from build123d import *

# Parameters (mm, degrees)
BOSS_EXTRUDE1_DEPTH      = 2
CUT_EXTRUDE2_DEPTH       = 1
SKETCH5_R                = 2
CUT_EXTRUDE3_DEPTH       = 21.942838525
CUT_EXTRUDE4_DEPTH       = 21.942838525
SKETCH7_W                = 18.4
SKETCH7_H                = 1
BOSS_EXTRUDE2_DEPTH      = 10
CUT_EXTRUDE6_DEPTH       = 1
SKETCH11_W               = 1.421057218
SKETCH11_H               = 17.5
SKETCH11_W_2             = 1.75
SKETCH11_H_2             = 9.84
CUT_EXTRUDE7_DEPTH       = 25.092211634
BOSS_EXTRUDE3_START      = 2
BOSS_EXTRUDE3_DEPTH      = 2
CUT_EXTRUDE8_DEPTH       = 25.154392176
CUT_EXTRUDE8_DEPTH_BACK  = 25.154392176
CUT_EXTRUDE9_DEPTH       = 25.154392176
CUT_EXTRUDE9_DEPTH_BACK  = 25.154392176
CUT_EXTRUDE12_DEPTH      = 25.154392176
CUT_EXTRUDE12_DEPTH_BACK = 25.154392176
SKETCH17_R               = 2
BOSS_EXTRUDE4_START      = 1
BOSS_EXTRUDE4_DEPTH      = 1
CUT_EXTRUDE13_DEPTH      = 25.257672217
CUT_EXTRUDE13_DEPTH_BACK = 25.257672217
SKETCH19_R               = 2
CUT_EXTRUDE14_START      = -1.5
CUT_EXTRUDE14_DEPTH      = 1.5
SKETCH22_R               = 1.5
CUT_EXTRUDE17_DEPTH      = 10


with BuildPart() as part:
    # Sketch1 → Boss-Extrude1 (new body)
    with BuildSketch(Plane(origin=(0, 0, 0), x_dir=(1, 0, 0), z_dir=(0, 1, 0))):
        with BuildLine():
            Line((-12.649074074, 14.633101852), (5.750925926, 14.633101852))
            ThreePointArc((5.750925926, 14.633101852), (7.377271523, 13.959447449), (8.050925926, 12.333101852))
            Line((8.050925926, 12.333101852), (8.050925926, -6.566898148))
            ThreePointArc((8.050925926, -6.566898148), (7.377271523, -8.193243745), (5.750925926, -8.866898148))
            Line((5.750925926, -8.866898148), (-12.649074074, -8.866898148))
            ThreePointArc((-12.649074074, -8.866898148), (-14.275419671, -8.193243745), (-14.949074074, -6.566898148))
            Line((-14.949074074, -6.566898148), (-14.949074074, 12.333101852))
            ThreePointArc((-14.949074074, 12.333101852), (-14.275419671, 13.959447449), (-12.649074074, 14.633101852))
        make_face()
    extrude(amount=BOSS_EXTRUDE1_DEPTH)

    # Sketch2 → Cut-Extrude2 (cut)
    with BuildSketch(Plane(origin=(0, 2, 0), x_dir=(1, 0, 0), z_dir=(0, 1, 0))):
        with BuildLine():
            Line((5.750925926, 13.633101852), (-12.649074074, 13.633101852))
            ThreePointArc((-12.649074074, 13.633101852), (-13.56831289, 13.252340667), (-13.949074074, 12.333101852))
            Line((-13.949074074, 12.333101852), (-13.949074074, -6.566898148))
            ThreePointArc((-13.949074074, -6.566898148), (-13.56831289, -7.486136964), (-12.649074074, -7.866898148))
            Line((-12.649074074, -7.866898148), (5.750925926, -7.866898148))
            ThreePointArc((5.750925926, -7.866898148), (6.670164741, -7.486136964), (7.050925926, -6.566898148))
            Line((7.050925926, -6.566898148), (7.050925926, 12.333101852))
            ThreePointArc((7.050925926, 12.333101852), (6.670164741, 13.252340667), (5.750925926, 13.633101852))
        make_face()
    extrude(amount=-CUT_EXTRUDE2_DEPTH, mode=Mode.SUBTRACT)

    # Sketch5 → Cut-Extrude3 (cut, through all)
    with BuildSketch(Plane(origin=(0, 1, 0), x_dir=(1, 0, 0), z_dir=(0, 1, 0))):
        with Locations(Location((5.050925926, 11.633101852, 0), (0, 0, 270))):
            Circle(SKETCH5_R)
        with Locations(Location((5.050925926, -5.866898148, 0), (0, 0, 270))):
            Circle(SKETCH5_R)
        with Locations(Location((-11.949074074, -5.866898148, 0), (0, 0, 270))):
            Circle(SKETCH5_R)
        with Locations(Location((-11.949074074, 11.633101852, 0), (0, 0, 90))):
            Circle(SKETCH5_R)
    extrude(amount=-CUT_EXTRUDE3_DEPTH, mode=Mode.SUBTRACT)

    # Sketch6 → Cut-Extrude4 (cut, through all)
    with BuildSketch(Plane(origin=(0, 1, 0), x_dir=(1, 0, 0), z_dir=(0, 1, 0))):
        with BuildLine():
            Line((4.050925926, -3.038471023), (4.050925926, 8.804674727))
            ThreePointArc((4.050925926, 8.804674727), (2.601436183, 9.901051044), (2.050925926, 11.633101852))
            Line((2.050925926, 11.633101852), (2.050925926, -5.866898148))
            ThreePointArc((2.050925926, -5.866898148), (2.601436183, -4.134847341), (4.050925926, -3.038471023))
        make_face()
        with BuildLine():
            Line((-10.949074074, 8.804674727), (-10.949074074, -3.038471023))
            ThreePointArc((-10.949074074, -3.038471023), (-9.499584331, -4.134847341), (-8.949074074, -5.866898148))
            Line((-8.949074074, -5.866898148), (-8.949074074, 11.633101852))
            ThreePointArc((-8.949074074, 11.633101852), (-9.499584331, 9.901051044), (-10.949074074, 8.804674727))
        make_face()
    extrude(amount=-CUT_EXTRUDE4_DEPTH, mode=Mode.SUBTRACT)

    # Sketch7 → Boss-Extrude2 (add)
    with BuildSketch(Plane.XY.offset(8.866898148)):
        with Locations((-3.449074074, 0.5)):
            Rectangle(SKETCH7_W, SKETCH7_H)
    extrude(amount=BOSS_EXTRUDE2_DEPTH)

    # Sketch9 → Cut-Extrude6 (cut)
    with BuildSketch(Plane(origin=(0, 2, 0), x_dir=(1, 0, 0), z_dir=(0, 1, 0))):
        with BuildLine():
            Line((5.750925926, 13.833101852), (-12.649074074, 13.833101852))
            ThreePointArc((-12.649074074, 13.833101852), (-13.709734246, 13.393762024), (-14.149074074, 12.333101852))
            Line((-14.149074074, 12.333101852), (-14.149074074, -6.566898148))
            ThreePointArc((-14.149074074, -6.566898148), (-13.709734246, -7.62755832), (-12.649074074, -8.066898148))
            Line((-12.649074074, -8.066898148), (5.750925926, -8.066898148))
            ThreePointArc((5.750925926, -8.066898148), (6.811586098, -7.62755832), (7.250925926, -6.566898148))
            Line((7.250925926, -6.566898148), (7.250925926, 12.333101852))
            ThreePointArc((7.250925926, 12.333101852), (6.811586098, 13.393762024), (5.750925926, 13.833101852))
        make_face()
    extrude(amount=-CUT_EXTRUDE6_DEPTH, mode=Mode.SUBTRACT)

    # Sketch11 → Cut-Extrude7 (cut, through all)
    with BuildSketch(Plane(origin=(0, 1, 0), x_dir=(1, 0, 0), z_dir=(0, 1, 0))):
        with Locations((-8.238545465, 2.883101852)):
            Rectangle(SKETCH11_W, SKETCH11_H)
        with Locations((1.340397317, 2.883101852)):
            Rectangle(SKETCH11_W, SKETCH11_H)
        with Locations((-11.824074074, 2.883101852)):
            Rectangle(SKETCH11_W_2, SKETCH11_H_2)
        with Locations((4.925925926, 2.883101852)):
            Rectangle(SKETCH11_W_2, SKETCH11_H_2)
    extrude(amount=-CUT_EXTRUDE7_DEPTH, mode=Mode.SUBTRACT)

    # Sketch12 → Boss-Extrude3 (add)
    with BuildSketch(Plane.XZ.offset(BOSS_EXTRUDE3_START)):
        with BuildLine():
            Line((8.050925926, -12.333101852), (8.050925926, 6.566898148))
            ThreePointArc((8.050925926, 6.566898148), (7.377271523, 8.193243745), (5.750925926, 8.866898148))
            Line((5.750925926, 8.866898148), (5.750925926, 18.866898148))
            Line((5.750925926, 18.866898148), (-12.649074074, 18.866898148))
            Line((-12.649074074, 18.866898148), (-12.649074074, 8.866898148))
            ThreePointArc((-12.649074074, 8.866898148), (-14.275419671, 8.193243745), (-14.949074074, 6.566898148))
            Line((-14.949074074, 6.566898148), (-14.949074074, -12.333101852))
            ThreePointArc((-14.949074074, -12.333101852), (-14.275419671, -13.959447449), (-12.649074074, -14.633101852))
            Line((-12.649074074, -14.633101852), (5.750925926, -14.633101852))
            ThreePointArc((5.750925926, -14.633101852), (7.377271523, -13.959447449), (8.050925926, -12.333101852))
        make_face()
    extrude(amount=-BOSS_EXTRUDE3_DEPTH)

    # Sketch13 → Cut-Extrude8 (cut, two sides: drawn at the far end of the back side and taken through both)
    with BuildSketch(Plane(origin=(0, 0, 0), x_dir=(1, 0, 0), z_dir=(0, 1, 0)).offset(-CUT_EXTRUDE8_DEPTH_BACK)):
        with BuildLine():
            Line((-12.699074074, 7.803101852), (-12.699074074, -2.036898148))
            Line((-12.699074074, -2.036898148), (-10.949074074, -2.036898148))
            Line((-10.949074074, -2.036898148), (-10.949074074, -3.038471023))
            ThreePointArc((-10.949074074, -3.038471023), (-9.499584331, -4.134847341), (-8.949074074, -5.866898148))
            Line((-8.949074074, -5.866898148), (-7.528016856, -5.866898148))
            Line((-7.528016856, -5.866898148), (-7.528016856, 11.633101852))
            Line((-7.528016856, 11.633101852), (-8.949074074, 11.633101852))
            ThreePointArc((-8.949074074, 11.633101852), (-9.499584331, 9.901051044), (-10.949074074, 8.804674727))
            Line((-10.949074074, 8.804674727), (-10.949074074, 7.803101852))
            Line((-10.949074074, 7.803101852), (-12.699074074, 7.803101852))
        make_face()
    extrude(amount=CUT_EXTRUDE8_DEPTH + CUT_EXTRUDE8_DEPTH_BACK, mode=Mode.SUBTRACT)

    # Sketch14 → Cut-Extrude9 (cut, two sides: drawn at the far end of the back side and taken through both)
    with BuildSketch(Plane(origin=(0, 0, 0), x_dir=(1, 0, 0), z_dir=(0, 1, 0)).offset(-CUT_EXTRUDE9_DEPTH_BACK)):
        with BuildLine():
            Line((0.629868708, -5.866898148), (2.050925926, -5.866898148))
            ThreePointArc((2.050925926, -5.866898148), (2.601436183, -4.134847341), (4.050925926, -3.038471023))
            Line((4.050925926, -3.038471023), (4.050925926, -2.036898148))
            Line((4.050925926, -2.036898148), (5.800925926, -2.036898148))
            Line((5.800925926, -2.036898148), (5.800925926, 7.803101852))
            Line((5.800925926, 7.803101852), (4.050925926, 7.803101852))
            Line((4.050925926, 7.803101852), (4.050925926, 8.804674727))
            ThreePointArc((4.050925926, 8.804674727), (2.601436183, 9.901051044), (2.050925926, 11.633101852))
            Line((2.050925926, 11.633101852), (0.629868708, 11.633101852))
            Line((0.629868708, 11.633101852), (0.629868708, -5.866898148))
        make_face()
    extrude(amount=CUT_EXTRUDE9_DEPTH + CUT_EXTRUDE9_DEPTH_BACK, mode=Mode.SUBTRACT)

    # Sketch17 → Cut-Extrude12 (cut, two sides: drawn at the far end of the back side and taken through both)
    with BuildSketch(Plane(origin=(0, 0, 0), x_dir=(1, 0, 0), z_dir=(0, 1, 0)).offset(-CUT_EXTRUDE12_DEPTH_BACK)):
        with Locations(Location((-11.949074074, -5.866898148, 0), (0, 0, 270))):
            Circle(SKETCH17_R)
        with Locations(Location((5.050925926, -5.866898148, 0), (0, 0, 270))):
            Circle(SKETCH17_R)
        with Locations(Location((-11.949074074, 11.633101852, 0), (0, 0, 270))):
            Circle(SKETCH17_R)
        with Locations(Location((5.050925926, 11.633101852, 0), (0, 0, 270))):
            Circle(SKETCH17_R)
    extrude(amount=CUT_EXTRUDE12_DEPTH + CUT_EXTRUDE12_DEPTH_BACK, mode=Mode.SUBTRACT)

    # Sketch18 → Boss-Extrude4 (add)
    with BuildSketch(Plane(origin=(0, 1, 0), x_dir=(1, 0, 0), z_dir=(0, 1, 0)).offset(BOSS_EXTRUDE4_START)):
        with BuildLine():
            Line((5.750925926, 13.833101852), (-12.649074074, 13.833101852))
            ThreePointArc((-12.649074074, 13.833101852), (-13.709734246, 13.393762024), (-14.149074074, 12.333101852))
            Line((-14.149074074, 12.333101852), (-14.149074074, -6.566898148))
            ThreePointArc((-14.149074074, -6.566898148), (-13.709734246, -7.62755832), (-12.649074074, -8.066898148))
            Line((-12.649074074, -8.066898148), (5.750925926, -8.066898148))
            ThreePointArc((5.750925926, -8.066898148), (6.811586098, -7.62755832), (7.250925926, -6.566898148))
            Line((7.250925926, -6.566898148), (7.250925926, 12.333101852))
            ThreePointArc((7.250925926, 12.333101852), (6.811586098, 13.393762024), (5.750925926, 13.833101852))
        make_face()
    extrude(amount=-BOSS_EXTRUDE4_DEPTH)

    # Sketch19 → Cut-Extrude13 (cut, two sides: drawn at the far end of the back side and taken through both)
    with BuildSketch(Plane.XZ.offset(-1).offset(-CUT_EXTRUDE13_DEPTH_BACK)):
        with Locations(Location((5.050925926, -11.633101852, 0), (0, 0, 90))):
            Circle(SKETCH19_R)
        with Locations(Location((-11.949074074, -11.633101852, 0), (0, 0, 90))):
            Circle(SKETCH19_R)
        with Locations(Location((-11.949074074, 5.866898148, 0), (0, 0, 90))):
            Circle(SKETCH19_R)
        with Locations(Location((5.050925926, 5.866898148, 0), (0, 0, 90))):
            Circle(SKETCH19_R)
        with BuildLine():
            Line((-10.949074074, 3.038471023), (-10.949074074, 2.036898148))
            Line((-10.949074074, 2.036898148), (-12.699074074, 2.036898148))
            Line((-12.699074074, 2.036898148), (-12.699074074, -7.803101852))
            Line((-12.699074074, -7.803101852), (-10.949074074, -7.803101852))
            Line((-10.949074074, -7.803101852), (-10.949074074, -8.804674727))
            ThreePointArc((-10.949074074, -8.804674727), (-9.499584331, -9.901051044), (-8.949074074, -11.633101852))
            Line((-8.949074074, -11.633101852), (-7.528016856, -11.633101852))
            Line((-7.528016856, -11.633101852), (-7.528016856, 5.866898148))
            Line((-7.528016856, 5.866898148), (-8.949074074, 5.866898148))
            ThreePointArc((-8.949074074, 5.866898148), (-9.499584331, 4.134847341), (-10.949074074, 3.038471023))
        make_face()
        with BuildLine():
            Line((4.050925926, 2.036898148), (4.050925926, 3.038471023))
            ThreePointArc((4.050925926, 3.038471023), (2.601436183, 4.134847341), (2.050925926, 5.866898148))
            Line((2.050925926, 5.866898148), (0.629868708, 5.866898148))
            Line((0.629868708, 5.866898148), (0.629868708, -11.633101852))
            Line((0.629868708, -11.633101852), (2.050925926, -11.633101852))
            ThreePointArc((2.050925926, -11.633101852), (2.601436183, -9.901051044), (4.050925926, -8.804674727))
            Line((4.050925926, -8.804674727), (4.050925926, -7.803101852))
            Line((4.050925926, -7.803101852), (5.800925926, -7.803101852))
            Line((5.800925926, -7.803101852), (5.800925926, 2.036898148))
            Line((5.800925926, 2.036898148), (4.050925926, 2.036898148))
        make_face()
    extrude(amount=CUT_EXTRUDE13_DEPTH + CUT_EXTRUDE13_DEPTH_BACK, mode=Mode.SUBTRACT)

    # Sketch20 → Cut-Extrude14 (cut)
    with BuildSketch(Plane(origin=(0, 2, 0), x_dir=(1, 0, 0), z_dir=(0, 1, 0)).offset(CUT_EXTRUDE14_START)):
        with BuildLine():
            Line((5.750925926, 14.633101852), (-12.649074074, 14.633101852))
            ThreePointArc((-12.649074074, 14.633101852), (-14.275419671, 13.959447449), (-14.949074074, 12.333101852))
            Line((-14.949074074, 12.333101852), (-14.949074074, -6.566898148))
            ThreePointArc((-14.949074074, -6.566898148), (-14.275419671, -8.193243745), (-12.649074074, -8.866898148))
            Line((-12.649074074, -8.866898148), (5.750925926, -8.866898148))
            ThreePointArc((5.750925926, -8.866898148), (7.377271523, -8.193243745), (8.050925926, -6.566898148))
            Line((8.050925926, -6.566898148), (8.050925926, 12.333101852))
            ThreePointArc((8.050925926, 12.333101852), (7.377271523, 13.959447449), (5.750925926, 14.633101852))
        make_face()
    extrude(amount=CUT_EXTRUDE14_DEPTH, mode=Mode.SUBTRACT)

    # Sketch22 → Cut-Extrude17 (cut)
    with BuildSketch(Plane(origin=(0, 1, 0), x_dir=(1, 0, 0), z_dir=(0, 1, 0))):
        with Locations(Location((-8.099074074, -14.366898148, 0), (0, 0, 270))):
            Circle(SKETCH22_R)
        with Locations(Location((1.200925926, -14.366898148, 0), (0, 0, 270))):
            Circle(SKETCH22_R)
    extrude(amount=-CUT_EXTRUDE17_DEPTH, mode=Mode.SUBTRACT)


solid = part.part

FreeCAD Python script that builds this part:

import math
import FreeCAD as App
import Part
import Sketcher
Q = App.Units.Quantity


def add_polygon(sketch, points):
    """Adds a closed chain of lines whose ends are joined by coincident constraints."""
    first, n = sketch.GeometryCount, len(points)
    for a, b in zip(points, points[1:] + points[:1]):
        sketch.addGeometry(Part.LineSegment(App.Vector(*a, 0), App.Vector(*b, 0)), False)
    for i in range(n):
        sketch.addConstraint(Sketcher.Constraint("Coincident", first + i, 2, first + (i + 1) % n, 1))

doc = App.newDocument("Part")
body = doc.addObject("PartDesign::Body", "Body")

# Sketch on XZ plane
sketch1 = doc.addObject("Sketcher::SketchObject", "Sketch")
body.addObject(sketch1)
sketch1.AttachmentSupport = (doc.XZ_Plane, [""])
sketch1.MapMode = "FlatFace"
sketch1.addGeometry([
    Part.LineSegment(App.Vector(5.8, -14.6, 0), App.Vector(-12.6, -14.6, 0)),  # 0
    Part.ArcOfCircle(Part.Circle(App.Vector(-12.6, -12.3, 0), App.Vector(0, 0, 1), 2.3), math.radians(180), math.radians(270)),  # 1
    Part.LineSegment(App.Vector(-14.9, -12.3, 0), App.Vector(-14.9, 6.6, 0)),  # 2
    Part.ArcOfCircle(Part.Circle(App.Vector(-12.6, 6.6, 0), App.Vector(0, 0, 1), 2.3), math.radians(90), math.radians(180)),  # 3
    Part.LineSegment(App.Vector(-12.6, 8.9, 0), App.Vector(5.8, 8.9, 0)),  # 4
    Part.ArcOfCircle(Part.Circle(App.Vector(5.8, 6.6, 0), App.Vector(0, 0, 1), 2.3), math.radians(0), math.radians(90)),  # 5
    Part.LineSegment(App.Vector(8.1, 6.6, 0), App.Vector(8.1, -12.3, 0)),  # 6
    Part.ArcOfCircle(Part.Circle(App.Vector(5.8, -12.3, 0), App.Vector(0, 0, 1), 2.3), math.radians(-90), math.radians(0)),  # 7
], False)
sketch1.addConstraint([
    Sketcher.Constraint("Tangent", 0, 2, 1, 2),
    Sketcher.Constraint("Tangent", 1, 1, 2, 1),
    Sketcher.Constraint("Tangent", 2, 2, 3, 2),
    Sketcher.Constraint("Tangent", 3, 1, 4, 1),
    Sketcher.Constraint("Tangent", 4, 2, 5, 2),
    Sketcher.Constraint("Tangent", 5, 1, 6, 1),
    Sketcher.Constraint("Tangent", 6, 2, 7, 2),
    Sketcher.Constraint("Tangent", 7, 1, 0, 1),
    Sketcher.Constraint("Horizontal", 0),
    Sketcher.Constraint("Vertical", 2),
    Sketcher.Constraint("Horizontal", 4),
    Sketcher.Constraint("Vertical", 6),
    Sketcher.Constraint("Equal", 1, 3),
    Sketcher.Constraint("Equal", 3, 5),
    Sketcher.Constraint("Equal", 5, 7),
    Sketcher.Constraint("Radius", 1, Q("2.3 mm")),
    Sketcher.Constraint("DistanceX", 0, 2, 0, 1, Q("18.4 mm")),
    Sketcher.Constraint("DistanceY", 2, 1, 2, 2, Q("18.9 mm")),
    Sketcher.Constraint("DistanceY", 1, 3, -1, 1, Q("12.333102 mm")),
    Sketcher.Constraint("DistanceX", 1, 3, -1, 1, Q("12.649074 mm")),
])
pad1 = doc.addObject("PartDesign::Pad", "Pad")
body.addObject(pad1)
pad1.Profile = sketch1
pad1.Length = 2
pad1.Reversed = True

# Sketch on XZ plane
sketch2 = doc.addObject("Sketcher::SketchObject", "Sketch001")
body.addObject(sketch2)
sketch2.AttachmentSupport = (doc.XZ_Plane, [""])
sketch2.MapMode = "FlatFace"
sketch2.AttachmentOffset = App.Placement(App.Vector(0, 0, -2), App.Rotation())
sketch2.addGeometry([
    Part.LineSegment(App.Vector(5.8, -13.6, 0), App.Vector(-12.6, -13.6, 0)),  # 0
    Part.ArcOfCircle(Part.Circle(App.Vector(-12.6, -12.3, 0), App.Vector(0, 0, 1), 1.3), math.radians(180), math.radians(270)),  # 1
    Part.LineSegment(App.Vector(-13.9, -12.3, 0), App.Vector(-13.9, 6.6, 0)),  # 2
    Part.ArcOfCircle(Part.Circle(App.Vector(-12.6, 6.6, 0), App.Vector(0, 0, 1), 1.3), math.radians(90), math.radians(180)),  # 3
    Part.LineSegment(App.Vector(-12.6, 7.9, 0), App.Vector(5.8, 7.9, 0)),  # 4
    Part.ArcOfCircle(Part.Circle(App.Vector(5.8, 6.6, 0), App.Vector(0, 0, 1), 1.3), math.radians(0), math.radians(90)),  # 5
    Part.LineSegment(App.Vector(7.1, 6.6, 0), App.Vector(7.1, -12.3, 0)),  # 6
    Part.ArcOfCircle(Part.Circle(App.Vector(5.8, -12.3, 0), App.Vector(0, 0, 1), 1.3), math.radians(-90), math.radians(0)),  # 7
], False)
sketch2.addConstraint([
    Sketcher.Constraint("Tangent", 0, 2, 1, 2),
    Sketcher.Constraint("Tangent", 1, 1, 2, 1),
    Sketcher.Constraint("Tangent", 2, 2, 3, 2),
    Sketcher.Constraint("Tangent", 3, 1, 4, 1),
    Sketcher.Constraint("Tangent", 4, 2, 5, 2),
    Sketcher.Constraint("Tangent", 5, 1, 6, 1),
    Sketcher.Constraint("Tangent", 6, 2, 7, 2),
    Sketcher.Constraint("Tangent", 7, 1, 0, 1),
    Sketcher.Constraint("Horizontal", 0),
    Sketcher.Constraint("Vertical", 2),
    Sketcher.Constraint("Horizontal", 4),
    Sketcher.Constraint("Vertical", 6),
    Sketcher.Constraint("Equal", 1, 3),
    Sketcher.Constraint("Equal", 3, 5),
    Sketcher.Constraint("Equal", 5, 7),
    Sketcher.Constraint("Radius", 1, Q("1.3 mm")),
    Sketcher.Constraint("DistanceX", 0, 2, 0, 1, Q("18.4 mm")),
    Sketcher.Constraint("DistanceY", 2, 1, 2, 2, Q("18.9 mm")),
    Sketcher.Constraint("DistanceY", 1, 3, -1, 1, Q("12.333102 mm")),
    Sketcher.Constraint("DistanceX", 1, 3, -1, 1, Q("12.649074 mm")),
])
pocket1 = doc.addObject("PartDesign::Pocket", "Pocket")
body.addObject(pocket1)
pocket1.Profile = sketch2
pocket1.Length = 1
pocket1.Reversed = True

# Sketch on XZ plane
sketch3 = doc.addObject("Sketcher::SketchObject", "Sketch002")
body.addObject(sketch3)
sketch3.AttachmentSupport = (doc.XZ_Plane, [""])
sketch3.MapMode = "FlatFace"
sketch3.AttachmentOffset = App.Placement(App.Vector(0, 0, -1), App.Rotation())
sketch3.addGeometry([
    Part.Circle(App.Vector(5.1, -11.6, 0), App.Vector(0, 0, 1), 2),
    Part.Circle(App.Vector(5.1, 5.9, 0), App.Vector(0, 0, 1), 2),
    Part.Circle(App.Vector(-11.9, 5.9, 0), App.Vector(0, 0, 1), 2),
    Part.Circle(App.Vector(-11.9, -11.6, 0), App.Vector(0, 0, 1), 2),
], False)
sketch3.addConstraint([
    Sketcher.Constraint("Equal", 0, 1),
    Sketcher.Constraint("Equal", 1, 2),
    Sketcher.Constraint("Equal", 2, 3),
    Sketcher.Constraint("Horizontal", 1, 3, 2, 3),
    Sketcher.Constraint("Horizontal", 0, 3, 3, 3),
    Sketcher.Constraint("Vertical", 0, 3, 1, 3),
    Sketcher.Constraint("Vertical", 2, 3, 3, 3),
    Sketcher.Constraint("Diameter", 0, Q("4 mm")),
    Sketcher.Constraint("DistanceX", 2, 3, 1, 3, Q("17 mm")),
    Sketcher.Constraint("DistanceY", 0, 3, 1, 3, Q("17.5 mm")),
    Sketcher.Constraint("DistanceY", 0, 3, -1, 1, Q("11.633102 mm")),
    Sketcher.Constraint("DistanceX", -1, 1, 0, 3, Q("5.050926 mm")),
])
pocket2 = doc.addObject("PartDesign::Pocket", "Pocket001")
body.addObject(pocket2)
pocket2.Profile = sketch3
pocket2.Type = "ThroughAll"
pocket2.Reversed = True

# Sketch on XZ plane
sketch4 = doc.addObject("Sketcher::SketchObject", "Sketch003")
body.addObject(sketch4)
sketch4.AttachmentSupport = (doc.XZ_Plane, [""])
sketch4.MapMode = "FlatFace"
sketch4.AttachmentOffset = App.Placement(App.Vector(0, 0, -1), App.Rotation())
sketch4.addGeometry([
    Part.LineSegment(App.Vector(4.1, 3, 0), App.Vector(4.1, -8.8, 0)),  # 0
    Part.ArcOfCircle(Part.Circle(App.Vector(5.1, -11.6, 0), App.Vector(0, 0, 1), 3), math.radians(109), math.radians(180)),  # 1
    Part.LineSegment(App.Vector(2.1, -11.6, 0), App.Vector(2.1, 5.9, 0)),  # 2
    Part.ArcOfCircle(Part.Circle(App.Vector(5.1, 5.9, 0), App.Vector(0, 0, 1), 3), math.radians(-180), math.radians(-109)),  # 3
    Part.LineSegment(App.Vector(-10.9, -8.8, 0), App.Vector(-10.9, 3, 0)),  # 4
    Part.ArcOfCircle(Part.Circle(App.Vector(-11.9, 5.9, 0), App.Vector(0, 0, 1), 3), math.radians(-71), math.radians(0)),  # 5
    Part.LineSegment(App.Vector(-8.9, 5.9, 0), App.Vector(-8.9, -11.6, 0)),  # 6
    Part.ArcOfCircle(Part.Circle(App.Vector(-11.9, -11.6, 0), App.Vector(0, 0, 1), 3), math.radians(0), math.radians(71)),  # 7
], False)
sketch4.addConstraint([
    Sketcher.Constraint("Coincident", 0, 2, 1, 1),
    Sketcher.Constraint("Tangent", 1, 2, 2, 1),
    Sketcher.Constraint("Tangent", 2, 2, 3, 1),
    Sketcher.Constraint("Coincident", 3, 2, 0, 1),
    Sketcher.Constraint("Coincident", 4, 2, 5, 1),
    Sketcher.Constraint("Tangent", 5, 2, 6, 1),
    Sketcher.Constraint("Tangent", 6, 2, 7, 1),
    Sketcher.Constraint("Coincident", 7, 2, 4, 1),
    Sketcher.Constraint("Vertical", 0),
    Sketcher.Constraint("Vertical", 2),
    Sketcher.Constraint("Vertical", 4),
    Sketcher.Constraint("Vertical", 6),
    Sketcher.Constraint("Equal", 1, 3),
    Sketcher.Constraint("Equal", 3, 5),
    Sketcher.Constraint("Equal", 5, 7),
    Sketcher.Constraint("Horizontal", 3, 3, 5, 3),
    Sketcher.Constraint("Horizontal", 1, 3, 7, 3),
    Sketcher.Constraint("Horizontal", 3, 2, 4, 2),
    Sketcher.Constraint("Radius", 1, Q("3 mm")),
    Sketcher.Constraint("DistanceY", 2, 1, 2, 2, Q("17.5 mm")),
    Sketcher.Constraint("DistanceX", 5, 3, 3, 3, Q("17 mm")),
    Sketcher.Constraint("DistanceX", 0, 2, 1, 3, Q("1 mm")),
    Sketcher.Constraint("DistanceY", 1, 3, -1, 1, Q("11.633102 mm")),
    Sketcher.Constraint("DistanceX", -1, 1, 1, 3, Q("5.050926 mm")),
])
pocket3 = doc.addObject("PartDesign::Pocket", "Pocket002")
body.addObject(pocket3)
pocket3.Profile = sketch4
pocket3.Type = "ThroughAll"
pocket3.Reversed = True

# Sketch on XY plane
sketch5 = doc.addObject("Sketcher::SketchObject", "Sketch004")
body.addObject(sketch5)
sketch5.AttachmentSupport = (doc.XY_Plane, [""])
sketch5.MapMode = "FlatFace"
sketch5.AttachmentOffset = App.Placement(App.Vector(0, 0, 8.866898), App.Rotation())
add_polygon(sketch5, [(-12.6, 1), (-12.6, 0), (5.8, 0), (5.8, 1)])  # lines 0-3
sketch5.addConstraint([
    Sketcher.Constraint("Vertical", 0),
    Sketcher.Constraint("Horizontal", 1),
    Sketcher.Constraint("Vertical", 2),
    Sketcher.Constraint("Horizontal", 3),
    Sketcher.Constraint("PointOnObject", 0, 2, -1),
    Sketcher.Constraint("DistanceY", 0, 2, 0, 1, Q("1 mm")),
    Sketcher.Constraint("DistanceX", 1, 1, 1, 2, Q("18.4 mm")),
    Sketcher.Constraint("DistanceX", 0, 2, -1, 1, Q("12.649074 mm")),
])
pad2 = doc.addObject("PartDesign::Pad", "Pad001")
body.addObject(pad2)
pad2.Profile = sketch5
pad2.Length = 10

# Sketch on XZ plane
sketch6 = doc.addObject("Sketcher::SketchObject", "Sketch005")
body.addObject(sketch6)
sketch6.AttachmentSupport = (doc.XZ_Plane, [""])
sketch6.MapMode = "FlatFace"
sketch6.AttachmentOffset = App.Placement(App.Vector(0, 0, -2), App.Rotation())
sketch6.addGeometry([
    Part.LineSegment(App.Vector(5.8, -13.8, 0), App.Vector(-12.6, -13.8, 0)),  # 0
    Part.ArcOfCircle(Part.Circle(App.Vector(-12.6, -12.3, 0), App.Vector(0, 0, 1), 1.5), math.radians(180), math.radians(270)),  # 1
    Part.LineSegment(App.Vector(-14.1, -12.3, 0), App.Vector(-14.1, 6.6, 0)),  # 2
    Part.ArcOfCircle(Part.Circle(App.Vector(-12.6, 6.6, 0), App.Vector(0, 0, 1), 1.5), math.radians(90), math.radians(180)),  # 3
    Part.LineSegment(App.Vector(-12.6, 8.1, 0), App.Vector(5.8, 8.1, 0)),  # 4
    Part.ArcOfCircle(Part.Circle(App.Vector(5.8, 6.6, 0), App.Vector(0, 0, 1), 1.5), math.radians(0), math.radians(90)),  # 5
    Part.LineSegment(App.Vector(7.3, 6.6, 0), App.Vector(7.3, -12.3, 0)),  # 6
    Part.ArcOfCircle(Part.Circle(App.Vector(5.8, -12.3, 0), App.Vector(0, 0, 1), 1.5), math.radians(-90), math.radians(0)),  # 7
], False)
sketch6.addConstraint([
    Sketcher.Constraint("Tangent", 0, 2, 1, 2),
    Sketcher.Constraint("Tangent", 1, 1, 2, 1),
    Sketcher.Constraint("Tangent", 2, 2, 3, 2),
    Sketcher.Constraint("Tangent", 3, 1, 4, 1),
    Sketcher.Constraint("Tangent", 4, 2, 5, 2),
    Sketcher.Constraint("Tangent", 5, 1, 6, 1),
    Sketcher.Constraint("Tangent", 6, 2, 7, 2),
    Sketcher.Constraint("Tangent", 7, 1, 0, 1),
    Sketcher.Constraint("Horizontal", 0),
    Sketcher.Constraint("Vertical", 2),
    Sketcher.Constraint("Horizontal", 4),
    Sketcher.Constraint("Vertical", 6),
    Sketcher.Constraint("Equal", 1, 3),
    Sketcher.Constraint("Equal", 3, 5),
    Sketcher.Constraint("Equal", 5, 7),
    Sketcher.Constraint("Radius", 1, Q("1.5 mm")),
    Sketcher.Constraint("DistanceX", 0, 2, 0, 1, Q("18.4 mm")),
    Sketcher.Constraint("DistanceY", 2, 1, 2, 2, Q("18.9 mm")),
    Sketcher.Constraint("DistanceY", 1, 3, -1, 1, Q("12.333102 mm")),
    Sketcher.Constraint("DistanceX", 1, 3, -1, 1, Q("12.649074 mm")),
])
pocket4 = doc.addObject("PartDesign::Pocket", "Pocket003")
body.addObject(pocket4)
pocket4.Profile = sketch6
pocket4.Length = 1
pocket4.Reversed = True

# Sketch on XZ plane
sketch7 = doc.addObject("Sketcher::SketchObject", "Sketch006")
body.addObject(sketch7)
sketch7.AttachmentSupport = (doc.XZ_Plane, [""])
sketch7.MapMode = "FlatFace"
sketch7.AttachmentOffset = App.Placement(App.Vector(0, 0, -1), App.Rotation())
add_polygon(sketch7, [(-8.9, -11.6), (-8.9, 5.9), (-7.5, 5.9), (-7.5, -11.6)])  # lines 0-3
add_polygon(sketch7, [(0.6, -11.6), (0.6, 5.9), (2.1, 5.9), (2.1, -11.6)])  # lines 4-7
add_polygon(sketch7, [(-12.7, -7.8), (-12.7, 2), (-10.9, 2), (-10.9, -7.8)])  # lines 8-11
add_polygon(sketch7, [(4.1, -7.8), (4.1, 2), (5.8, 2), (5.8, -7.8)])  # lines 12-15
sketch7.addConstraint([
    Sketcher.Constraint("Vertical", 0),
    Sketcher.Constraint("Horizontal", 1),
    Sketcher.Constraint("Vertical", 2),
    Sketcher.Constraint("Horizontal", 3),
    Sketcher.Constraint("Vertical", 4),
    Sketcher.Constraint("Horizontal", 5),
    Sketcher.Constraint("Vertical", 6),
    Sketcher.Constraint("Horizontal", 7),
    Sketcher.Constraint("Vertical", 8),
    Sketcher.Constraint("Horizontal", 9),
    Sketcher.Constraint("Vertical", 10),
    Sketcher.Constraint("Horizontal", 11),
    Sketcher.Constraint("Vertical", 12),
    Sketcher.Constraint("Horizontal", 13),
    Sketcher.Constraint("Vertical", 14),
    Sketcher.Constraint("Horizontal", 15),
    Sketcher.Constraint("Horizontal", 1, 2, 4, 2),
    Sketcher.Constraint("Horizontal", 3, 2, 6, 2),
    Sketcher.Constraint("Horizontal", 9, 2, 12, 2),
    Sketcher.Constraint("Horizontal", 11, 2, 14, 2),
    Sketcher.Constraint("Equal", 3, 5),
    Sketcher.Constraint("Equal", 11, 13),
    Sketcher.Constraint("DistanceY", 0, 1, 0, 2, Q("17.5 mm")),
    Sketcher.Constraint("DistanceX", 0, 2, 5, 2, Q("11 mm")),
    Sketcher.Constraint("DistanceX", 9, 2, 0, 2, Q("2 mm")),
    Sketcher.Constraint("DistanceX", 5, 2, 12, 2, Q("2 mm")),
    Sketcher.Constraint("DistanceX", 9, 1, 9, 2, Q("1.75 mm")),
    Sketcher.Constraint("DistanceY", 8, 1, 8, 2, Q("9.84 mm")),
    Sketcher.Constraint("DistanceY", 8, 2, 0, 2, Q("3.83 mm")),
    Sketcher.Constraint("DistanceY", -1, 1, 0, 2, Q("5.866898 mm")),
    Sketcher.Constraint("DistanceX", 1, 1, 1, 2, Q("1.421057 mm")),
    Sketcher.Constraint("DistanceX", -1, 1, 4, 2, Q("0.629869 mm")),
])
pocket5 = doc.addObject("PartDesign::Pocket", "Pocket004")
body.addObject(pocket5)
pocket5.Profile = sketch7
pocket5.Type = "ThroughAll"
pocket5.Reversed = True

# Sketch on XZ plane
sketch8 = doc.addObject("Sketcher::SketchObject", "Sketch007")
body.addObject(sketch8)
sketch8.AttachmentSupport = (doc.XZ_Plane, [""])
sketch8.MapMode = "FlatFace"
sketch8.AttachmentOffset = App.Placement(App.Vector(0, 0, 2), App.Rotation())
sketch8.addGeometry([
    Part.LineSegment(App.Vector(8.1, -12.3, 0), App.Vector(8.1, 6.6, 0)),  # 0
    Part.ArcOfCircle(Part.Circle(App.Vector(5.8, 6.6, 0), App.Vector(0, 0, 1), 2.3), math.radians(0), math.radians(90)),  # 1
    Part.LineSegment(App.Vector(5.8, 8.9, 0), App.Vector(5.8, 18.9, 0)),  # 2
    Part.LineSegment(App.Vector(5.8, 18.9, 0), App.Vector(-12.6, 18.9, 0)),  # 3
    Part.LineSegment(App.Vector(-12.6, 18.9, 0), App.Vector(-12.6, 8.9, 0)),  # 4
    Part.ArcOfCircle(Part.Circle(App.Vector(-12.6, 6.6, 0), App.Vector(0, 0, 1), 2.3), math.radians(90), math.radians(180)),  # 5
    Part.LineSegment(App.Vector(-14.9, 6.6, 0), App.Vector(-14.9, -12.3, 0)),  # 6
    Part.ArcOfCircle(Part.Circle(App.Vector(-12.6, -12.3, 0), App.Vector(0, 0, 1), 2.3), math.radians(180), math.radians(270)),  # 7
    Part.LineSegment(App.Vector(-12.6, -14.6, 0), App.Vector(5.8, -14.6, 0)),  # 8
    Part.ArcOfCircle(Part.Circle(App.Vector(5.8, -12.3, 0), App.Vector(0, 0, 1), 2.3), math.radians(-90), math.radians(0)),  # 9
], False)
sketch8.addConstraint([
    Sketcher.Constraint("Tangent", 0, 2, 1, 1),
    Sketcher.Constraint("Coincident", 1, 2, 2, 1),
    Sketcher.Constraint("Coincident", 2, 2, 3, 1),
    Sketcher.Constraint("Coincident", 3, 2, 4, 1),
    Sketcher.Constraint("Coincident", 4, 2, 5, 1),
    Sketcher.Constraint("Tangent", 5, 2, 6, 1),
    Sketcher.Constraint("Tangent", 6, 2, 7, 1),
    Sketcher.Constraint("Tangent", 7, 2, 8, 1),
    Sketcher.Constraint("Tangent", 8, 2, 9, 1),
    Sketcher.Constraint("Tangent", 9, 2, 0, 1),
    Sketcher.Constraint("Vertical", 0),
    Sketcher.Constraint("Vertical", 2),
    Sketcher.Constraint("Horizontal", 3),
    Sketcher.Constraint("Vertical", 4),
    Sketcher.Constraint("Vertical", 6),
    Sketcher.Constraint("Horizontal", 8),
    Sketcher.Constraint("Equal", 1, 5),
    Sketcher.Constraint("Equal", 5, 7),
    Sketcher.Constraint("Equal", 7, 9),
    Sketcher.Constraint("Horizontal", 1, 3, 5, 3),
    Sketcher.Constraint("Vertical", 9, 3, 1, 2),
    Sketcher.Constraint("Vertical", 7, 3, 3, 2),
    Sketcher.Constraint("Radius", 1, Q("2.3 mm")),
    Sketcher.Constraint("DistanceY", 2, 1, 2, 2, Q("10 mm")),
    Sketcher.Constraint("DistanceX", 3, 2, 3, 1, Q("18.4 mm")),
    Sketcher.Constraint("DistanceY", 0, 1, 0, 2, Q("18.9 mm")),
    Sketcher.Constraint("DistanceY", -1, 1, 1, 3, Q("6.566898 mm")),
    Sketcher.Constraint("DistanceX", -1, 1, 1, 3, Q("5.750926 mm")),
])
pad3 = doc.addObject("PartDesign::Pad", "Pad002")
body.addObject(pad3)
pad3.Profile = sketch8
pad3.Length = 2
pad3.Reversed = True

# Sketch on XZ plane
sketch9 = doc.addObject("Sketcher::SketchObject", "Sketch008")
body.addObject(sketch9)
sketch9.AttachmentSupport = (doc.XZ_Plane, [""])
sketch9.MapMode = "FlatFace"
sketch9.addGeometry([
    Part.LineSegment(App.Vector(-12.7, -7.8, 0), App.Vector(-12.7, 2, 0)),  # 0
    Part.LineSegment(App.Vector(-12.7, 2, 0), App.Vector(-10.9, 2, 0)),  # 1
    Part.LineSegment(App.Vector(-10.9, 2, 0), App.Vector(-10.9, 3, 0)),  # 2
    Part.ArcOfCircle(Part.Circle(App.Vector(-11.9, 5.9, 0), App.Vector(0, 0, 1), 3), math.radians(-71), math.radians(0)),  # 3
    Part.LineSegment(App.Vector(-8.9, 5.9, 0), App.Vector(-7.5, 5.9, 0)),  # 4
    Part.LineSegment(App.Vector(-7.5, 5.9, 0), App.Vector(-7.5, -11.6, 0)),  # 5
    Part.LineSegment(App.Vector(-7.5, -11.6, 0), App.Vector(-8.9, -11.6, 0)),  # 6
    Part.ArcOfCircle(Part.Circle(App.Vector(-11.9, -11.6, 0), App.Vector(0, 0, 1), 3), math.radians(0), math.radians(71)),  # 7
    Part.LineSegment(App.Vector(-10.9, -8.8, 0), App.Vector(-10.9, -7.8, 0)),  # 8
    Part.LineSegment(App.Vector(-10.9, -7.8, 0), App.Vector(-12.7, -7.8, 0)),  # 9
], False)
sketch9.addConstraint([
    Sketcher.Constraint("Coincident", 0, 2, 1, 1),
    Sketcher.Constraint("Coincident", 1, 2, 2, 1),
    Sketcher.Constraint("Coincident", 2, 2, 3, 1),
    Sketcher.Constraint("Coincident", 3, 2, 4, 1),
    Sketcher.Constraint("Coincident", 4, 2, 5, 1),
    Sketcher.Constraint("Coincident", 5, 2, 6, 1),
    Sketcher.Constraint("Coincident", 6, 2, 7, 1),
    Sketcher.Constraint("Coincident", 7, 2, 8, 1),
    Sketcher.Constraint("Coincident", 8, 2, 9, 1),
    Sketcher.Constraint("Coincident", 9, 2, 0, 1),
    Sketcher.Constraint("Vertical", 0),
    Sketcher.Constraint("Horizontal", 1),
    Sketcher.Constraint("Vertical", 2),
    Sketcher.Constraint("Horizontal", 4),
    Sketcher.Constraint("Vertical", 5),
    Sketcher.Constraint("Horizontal", 6),
    Sketcher.Constraint("Vertical", 8),
    Sketcher.Constraint("Horizontal", 9),
    Sketcher.Constraint("Equal", 3, 7),
    Sketcher.Constraint("Horizontal", 7, 3, 5, 2),
    Sketcher.Constraint("Vertical", 3, 3, 7, 3),
    Sketcher.Constraint("Vertical", 2, 2, 7, 2),
    Sketcher.Constraint("Equal", 2, 8),
    Sketcher.Constraint("Radius", 3, Q("3 mm")),
    Sketcher.Constraint("DistanceY", 5, 2, 5, 1, Q("17.5 mm")),
    Sketcher.Constraint("DistanceX", 3, 3, 1, 2, Q("1 mm")),
    Sketcher.Constraint("DistanceX", 1, 1, 1, 2, Q("1.75 mm")),
    Sketcher.Constraint("DistanceY", 0, 1, 0, 2, Q("9.84 mm")),
    Sketcher.Constraint("DistanceY", 7, 3, 3, 3, Q("17.5 mm")),
    Sketcher.Constraint("DistanceY", -1, 1, 3, 3, Q("5.866898 mm")),
    Sketcher.Constraint("DistanceX", 4, 1, 4, 2, Q("1.421057 mm")),
    Sketcher.Constraint("DistanceX", 3, 3, -1, 1, Q("11.949074 mm")),
])
pocket6 = doc.addObject("PartDesign::Pocket", "Pocket005")
body.addObject(pocket6)
pocket6.Profile = sketch9
pocket6.Type = "ThroughAll"
pocket6.Midplane = True

# Sketch on XZ plane
sketch10 = doc.addObject("Sketcher::SketchObject", "Sketch009")
body.addObject(sketch10)
sketch10.AttachmentSupport = (doc.XZ_Plane, [""])
sketch10.MapMode = "FlatFace"
sketch10.addGeometry([
    Part.LineSegment(App.Vector(0.6, 5.9, 0), App.Vector(2.1, 5.9, 0)),  # 0
    Part.ArcOfCircle(Part.Circle(App.Vector(5.1, 5.9, 0), App.Vector(0, 0, 1), 3), math.radians(-180), math.radians(-109)),  # 1
    Part.LineSegment(App.Vector(4.1, 3, 0), App.Vector(4.1, 2, 0)),  # 2
    Part.LineSegment(App.Vector(4.1, 2, 0), App.Vector(5.8, 2, 0)),  # 3
    Part.LineSegment(App.Vector(5.8, 2, 0), App.Vector(5.8, -7.8, 0)),  # 4
    Part.LineSegment(App.Vector(5.8, -7.8, 0), App.Vector(4.1, -7.8, 0)),  # 5
    Part.LineSegment(App.Vector(4.1, -7.8, 0), App.Vector(4.1, -8.8, 0)),  # 6
    Part.ArcOfCircle(Part.Circle(App.Vector(5.1, -11.6, 0), App.Vector(0, 0, 1), 3), math.radians(109), math.radians(180)),  # 7
    Part.LineSegment(App.Vector(2.1, -11.6, 0), App.Vector(0.6, -11.6, 0)),  # 8
    Part.LineSegment(App.Vector(0.6, -11.6, 0), App.Vector(0.6, 5.9, 0)),  # 9
], False)
sketch10.addConstraint([
    Sketcher.Constraint("Coincident", 0, 2, 1, 1),
    Sketcher.Constraint("Coincident", 1, 2, 2, 1),
    Sketcher.Constraint("Coincident", 2, 2, 3, 1),
    Sketcher.Constraint("Coincident", 3, 2, 4, 1),
    Sketcher.Constraint("Coincident", 4, 2, 5, 1),
    Sketcher.Constraint("Coincident", 5, 2, 6, 1),
    Sketcher.Constraint("Coincident", 6, 2, 7, 1),
    Sketcher.Constraint("Coincident", 7, 2, 8, 1),
    Sketcher.Constraint("Coincident", 8, 2, 9, 1),
    Sketcher.Constraint("Coincident", 9, 2, 0, 1),
    Sketcher.Constraint("Horizontal", 0),
    Sketcher.Constraint("Vertical", 2),
    Sketcher.Constraint("Horizontal", 3),
    Sketcher.Constraint("Vertical", 4),
    Sketcher.Constraint("Horizontal", 5),
    Sketcher.Constraint("Vertical", 6),
    Sketcher.Constraint("Horizontal", 8),
    Sketcher.Constraint("Vertical", 9),
    Sketcher.Constraint("Equal", 1, 7),
    Sketcher.Constraint("Horizontal", 1, 3, 0, 2),
    Sketcher.Constraint("Vertical", 1, 3, 7, 3),
    Sketcher.Constraint("Vertical", 2, 2, 5, 2),
    Sketcher.Constraint("Equal", 2, 6),
    Sketcher.Constraint("Radius", 1, Q("3 mm")),
    Sketcher.Constraint("DistanceY", 9, 1, 9, 2, Q("17.5 mm")),
    Sketcher.Constraint("DistanceX", 1, 2, 1, 3, Q("1 mm")),
    Sketcher.Constraint("DistanceX", 3, 1, 3, 2, Q("1.75 mm")),
    Sketcher.Constraint("DistanceY", 4, 2, 4, 1, Q("9.84 mm")),
    Sketcher.Constraint("DistanceY", 7, 3, 1, 3, Q("17.5 mm")),
    Sketcher.Constraint("DistanceY", -1, 1, 1, 3, Q("5.866898 mm")),
    Sketcher.Constraint("DistanceX", 0, 1, 0, 2, Q("1.421057 mm")),
    Sketcher.Constraint("DistanceX", -1, 1, 8, 2, Q("0.629869 mm")),
])
pocket7 = doc.addObject("PartDesign::Pocket", "Pocket006")
body.addObject(pocket7)
pocket7.Profile = sketch10
pocket7.Type = "ThroughAll"
pocket7.Midplane = True

# Sketch on XZ plane
sketch11 = doc.addObject("Sketcher::SketchObject", "Sketch010")
body.addObject(sketch11)
sketch11.AttachmentSupport = (doc.XZ_Plane, [""])
sketch11.MapMode = "FlatFace"
sketch11.addGeometry([
    Part.Circle(App.Vector(-11.9, 5.9, 0), App.Vector(0, 0, 1), 2),
    Part.Circle(App.Vector(5.1, 5.9, 0), App.Vector(0, 0, 1), 2),
    Part.Circle(App.Vector(-11.9, -11.6, 0), App.Vector(0, 0, 1), 2),
    Part.Circle(App.Vector(5.1, -11.6, 0), App.Vector(0, 0, 1), 2),
], False)
sketch11.addConstraint([
    Sketcher.Constraint("Equal", 0, 1),
    Sketcher.Constraint("Equal", 1, 2),
    Sketcher.Constraint("Equal", 2, 3),
    Sketcher.Constraint("Horizontal", 0, 3, 1, 3),
    Sketcher.Constraint("Horizontal", 2, 3, 3, 3),
    Sketcher.Constraint("Vertical", 0, 3, 2, 3),
    Sketcher.Constraint("Vertical", 1, 3, 3, 3),
    Sketcher.Constraint("Diameter", 0, Q("4 mm")),
    Sketcher.Constraint("DistanceX", 0, 3, 1, 3, Q("17 mm")),
    Sketcher.Constraint("DistanceY", 2, 3, 0, 3, Q("17.5 mm")),
    Sketcher.Constraint("DistanceY", -1, 1, 0, 3, Q("5.866898 mm")),
    Sketcher.Constraint("DistanceX", 0, 3, -1, 1, Q("11.949074 mm")),
])
pocket8 = doc.addObject("PartDesign::Pocket", "Pocket007")
body.addObject(pocket8)
pocket8.Profile = sketch11
pocket8.Type = "ThroughAll"
pocket8.Midplane = True

# Sketch on XZ plane
sketch12 = doc.addObject("Sketcher::SketchObject", "Sketch011")
body.addObject(sketch12)
sketch12.AttachmentSupport = (doc.XZ_Plane, [""])
sketch12.MapMode = "FlatFace"
sketch12.AttachmentOffset = App.Placement(App.Vector(0, 0, -2), App.Rotation())
sketch12.addGeometry([
    Part.LineSegment(App.Vector(5.8, -13.8, 0), App.Vector(-12.6, -13.8, 0)),  # 0
    Part.ArcOfCircle(Part.Circle(App.Vector(-12.6, -12.3, 0), App.Vector(0, 0, 1), 1.5), math.radians(180), math.radians(270)),  # 1
    Part.LineSegment(App.Vector(-14.1, -12.3, 0), App.Vector(-14.1, 6.6, 0)),  # 2
    Part.ArcOfCircle(Part.Circle(App.Vector(-12.6, 6.6, 0), App.Vector(0, 0, 1), 1.5), math.radians(90), math.radians(180)),  # 3
    Part.LineSegment(App.Vector(-12.6, 8.1, 0), App.Vector(5.8, 8.1, 0)),  # 4
    Part.ArcOfCircle(Part.Circle(App.Vector(5.8, 6.6, 0), App.Vector(0, 0, 1), 1.5), math.radians(0), math.radians(90)),  # 5
    Part.LineSegment(App.Vector(7.3, 6.6, 0), App.Vector(7.3, -12.3, 0)),  # 6
    Part.ArcOfCircle(Part.Circle(App.Vector(5.8, -12.3, 0), App.Vector(0, 0, 1), 1.5), math.radians(-90), math.radians(0)),  # 7
], False)
sketch12.addConstraint([
    Sketcher.Constraint("Tangent", 0, 2, 1, 2),
    Sketcher.Constraint("Tangent", 1, 1, 2, 1),
    Sketcher.Constraint("Tangent", 2, 2, 3, 2),
    Sketcher.Constraint("Tangent", 3, 1, 4, 1),
    Sketcher.Constraint("Tangent", 4, 2, 5, 2),
    Sketcher.Constraint("Tangent", 5, 1, 6, 1),
    Sketcher.Constraint("Tangent", 6, 2, 7, 2),
    Sketcher.Constraint("Tangent", 7, 1, 0, 1),
    Sketcher.Constraint("Horizontal", 0),
    Sketcher.Constraint("Vertical", 2),
    Sketcher.Constraint("Horizontal", 4),
    Sketcher.Constraint("Vertical", 6),
    Sketcher.Constraint("Equal", 1, 3),
    Sketcher.Constraint("Equal", 3, 5),
    Sketcher.Constraint("Equal", 5, 7),
    Sketcher.Constraint("Radius", 1, Q("1.5 mm")),
    Sketcher.Constraint("DistanceX", 0, 2, 0, 1, Q("18.4 mm")),
    Sketcher.Constraint("DistanceY", 2, 1, 2, 2, Q("18.9 mm")),
    Sketcher.Constraint("DistanceY", 1, 3, -1, 1, Q("12.333102 mm")),
    Sketcher.Constraint("DistanceX", 1, 3, -1, 1, Q("12.649074 mm")),
])
pad4 = doc.addObject("PartDesign::Pad", "Pad003")
body.addObject(pad4)
pad4.Profile = sketch12
pad4.Length = 1

# Sketch on XZ plane
sketch13 = doc.addObject("Sketcher::SketchObject", "Sketch012")
body.addObject(sketch13)
sketch13.AttachmentSupport = (doc.XZ_Plane, [""])
sketch13.MapMode = "FlatFace"
sketch13.AttachmentOffset = App.Placement(App.Vector(0, 0, -1), App.Rotation())
sketch13.addGeometry([
    Part.Circle(App.Vector(5.1, -11.6, 0), App.Vector(0, 0, 1), 2),  # 0
    Part.Circle(App.Vector(-11.9, -11.6, 0), App.Vector(0, 0, 1), 2),  # 1
    Part.Circle(App.Vector(-11.9, 5.9, 0), App.Vector(0, 0, 1), 2),  # 2
    Part.Circle(App.Vector(5.1, 5.9, 0), App.Vector(0, 0, 1), 2),  # 3
    Part.LineSegment(App.Vector(-10.9, 3, 0), App.Vector(-10.9, 2, 0)),  # 4
    Part.LineSegment(App.Vector(-10.9, 2, 0), App.Vector(-12.7, 2, 0)),  # 5
    Part.LineSegment(App.Vector(-12.7, 2, 0), App.Vector(-12.7, -7.8, 0)),  # 6
    Part.LineSegment(App.Vector(-12.7, -7.8, 0), App.Vector(-10.9, -7.8, 0)),  # 7
    Part.LineSegment(App.Vector(-10.9, -7.8, 0), App.Vector(-10.9, -8.8, 0)),  # 8
    Part.ArcOfCircle(Part.Circle(App.Vector(-11.9, -11.6, 0), App.Vector(0, 0, 1), 3), math.radians(0), math.radians(71)),  # 9
    Part.LineSegment(App.Vector(-8.9, -11.6, 0), App.Vector(-7.5, -11.6, 0)),  # 10
    Part.LineSegment(App.Vector(-7.5, -11.6, 0), App.Vector(-7.5, 5.9, 0)),  # 11
    Part.LineSegment(App.Vector(-7.5, 5.9, 0), App.Vector(-8.9, 5.9, 0)),  # 12
    Part.ArcOfCircle(Part.Circle(App.Vector(-11.9, 5.9, 0), App.Vector(0, 0, 1), 3), math.radians(-71), math.radians(0)),  # 13
    Part.LineSegment(App.Vector(4.1, 2, 0), App.Vector(4.1, 3, 0)),  # 14
    Part.ArcOfCircle(Part.Circle(App.Vector(5.1, 5.9, 0), App.Vector(0, 0, 1), 3), math.radians(-180), math.radians(-109)),  # 15
    Part.LineSegment(App.Vector(2.1, 5.9, 0), App.Vector(0.6, 5.9, 0)),  # 16
    Part.LineSegment(App.Vector(0.6, 5.9, 0), App.Vector(0.6, -11.6, 0)),  # 17
    Part.LineSegment(App.Vector(0.6, -11.6, 0), App.Vector(2.1, -11.6, 0)),  # 18
    Part.ArcOfCircle(Part.Circle(App.Vector(5.1, -11.6, 0), App.Vector(0, 0, 1), 3), math.radians(109), math.radians(180)),  # 19
    Part.LineSegment(App.Vector(4.1, -8.8, 0), App.Vector(4.1, -7.8, 0)),  # 20
    Part.LineSegment(App.Vector(4.1, -7.8, 0), App.Vector(5.8, -7.8, 0)),  # 21
    Part.LineSegment(App.Vector(5.8, -7.8, 0), App.Vector(5.8, 2, 0)),  # 22
    Part.LineSegment(App.Vector(5.8, 2, 0), App.Vector(4.1, 2, 0)),  # 23
], False)
sketch13.addConstraint([
    Sketcher.Constraint("Coincident", 4, 2, 5, 1),
    Sketcher.Constraint("Coincident", 5, 2, 6, 1),
    Sketcher.Constraint("Coincident", 6, 2, 7, 1),
    Sketcher.Constraint("Coincident", 7, 2, 8, 1),
    Sketcher.Constraint("Coincident", 8, 2, 9, 2),
    Sketcher.Constraint("Coincident", 9, 1, 10, 1),
    Sketcher.Constraint("Coincident", 10, 2, 11, 1),
    Sketcher.Constraint("Coincident", 11, 2, 12, 1),
    Sketcher.Constraint("Coincident", 12, 2, 13, 2),
    Sketcher.Constraint("Coincident", 13, 1, 4, 1),
    Sketcher.Constraint("Coincident", 14, 2, 15, 2),
    Sketcher.Constraint("Coincident", 15, 1, 16, 1),
    Sketcher.Constraint("Coincident", 16, 2, 17, 1),
    Sketcher.Constraint("Coincident", 17, 2, 18, 1),
    Sketcher.Constraint("Coincident", 18, 2, 19, 2),
    Sketcher.Constraint("Coincident", 19, 1, 20, 1),
    Sketcher.Constraint("Coincident", 20, 2, 21, 1),
    Sketcher.Constraint("Coincident", 21, 2, 22, 1),
    Sketcher.Constraint("Coincident", 22, 2, 23, 1),
    Sketcher.Constraint("Coincident", 23, 2, 14, 1),
    Sketcher.Constraint("Vertical", 4),
    Sketcher.Constraint("Horizontal", 5),
    Sketcher.Constraint("Vertical", 6),
    Sketcher.Constraint("Horizontal", 7),
    Sketcher.Constraint("Vertical", 8),
    Sketcher.Constraint("Horizontal", 10),
    Sketcher.Constraint("Vertical", 11),
    Sketcher.Constraint("Horizontal", 12),
    Sketcher.Constraint("Vertical", 14),
    Sketcher.Constraint("Horizontal", 16),
    Sketcher.Constraint("Vertical", 17),
    Sketcher.Constraint("Horizontal", 18),
    Sketcher.Constraint("Vertical", 20),
    Sketcher.Constraint("Horizontal", 21),
    Sketcher.Constraint("Vertical", 22),
    Sketcher.Constraint("Horizontal", 23),
    Sketcher.Constraint("Coincident", 9, 3, 1, 3),
    Sketcher.Constraint("Coincident", 13, 3, 2, 3),
    Sketcher.Constraint("Coincident", 15, 3, 3, 3),
    Sketcher.Constraint("Coincident", 19, 3, 0, 3),
    Sketcher.Constraint("Equal", 0, 1),
    Sketcher.Constraint("Equal", 1, 2),
    Sketcher.Constraint("Equal", 2, 3),
    Sketcher.Constraint("Equal", 9, 13),
    Sketcher.Constraint("Equal", 13, 15),
    Sketcher.Constraint("Equal", 15, 19),
    Sketcher.Constraint("Horizontal", 0, 3, 1, 3),
    Sketcher.Constraint("Horizontal", 2, 3, 3, 3),
    Sketcher.Constraint("Horizontal", 19, 3, 9, 1),
    Sketcher.Constraint("Horizontal", 15, 3, 11, 2),
    Sketcher.Constraint("Horizontal", 13, 1, 14, 2),
    Sketcher.Constraint("Horizontal", 12, 2, 15, 1),
    Sketcher.Constraint("Horizontal", 10, 2, 17, 2),
    Sketcher.Constraint("Horizontal", 8, 2, 19, 1),
    Sketcher.Constraint("Horizontal", 7, 2, 20, 2),
    Sketcher.Constraint("Horizontal", 5, 2, 22, 2),
    Sketcher.Constraint("Vertical", 1, 3, 2, 3),
    Sketcher.Constraint("Vertical", 0, 3, 3, 3),
    Sketcher.Constraint("Vertical", 4, 2, 7, 2),
    Sketcher.Constraint("Equal", 12, 16),
    Sketcher.Constraint("Equal", 7, 21),
    Sketcher.Constraint("Equal", 4, 8),
    Sketcher.Constraint("Diameter", 0, Q("4 mm")),
    Sketcher.Constraint("Radius", 9, Q("3 mm")),
    Sketcher.Constraint("DistanceY", 11, 1, 11, 2, Q("17.5 mm")),
    Sketcher.Constraint("DistanceX", 1, 3, 0, 3, Q("17 mm")),
    Sketcher.Constraint("DistanceX", 2, 3, 4, 2, Q("1 mm")),
    Sketcher.Constraint("DistanceX", 5, 2, 5, 1, Q("1.75 mm")),
    Sketcher.Constraint("DistanceY", 6, 2, 6, 1, Q("9.84 mm")),
    Sketcher.Constraint("DistanceY", 0, 3, -1, 1, Q("11.633102 mm")),
    Sketcher.Constraint("DistanceX", 10, 1, 10, 2, Q("1.421057 mm")),
    Sketcher.Constraint("DistanceX", -1, 1, 16, 2, Q("0.629869 mm")),
])
pocket9 = doc.addObject("PartDesign::Pocket", "Pocket008")
body.addObject(pocket9)
pocket9.Profile = sketch13
pocket9.Type = "ThroughAll"
pocket9.Midplane = True

# Sketch on XZ plane
sketch14 = doc.addObject("Sketcher::SketchObject", "Sketch013")
body.addObject(sketch14)
sketch14.AttachmentSupport = (doc.XZ_Plane, [""])
sketch14.MapMode = "FlatFace"
sketch14.AttachmentOffset = App.Placement(App.Vector(0, 0, -0.5), App.Rotation())
sketch14.addGeometry([
    Part.LineSegment(App.Vector(5.8, -14.6, 0), App.Vector(-12.6, -14.6, 0)),  # 0
    Part.ArcOfCircle(Part.Circle(App.Vector(-12.6, -12.3, 0), App.Vector(0, 0, 1), 2.3), math.radians(180), math.radians(270)),  # 1
    Part.LineSegment(App.Vector(-14.9, -12.3, 0), App.Vector(-14.9, 6.6, 0)),  # 2
    Part.ArcOfCircle(Part.Circle(App.Vector(-12.6, 6.6, 0), App.Vector(0, 0, 1), 2.3), math.radians(90), math.radians(180)),  # 3
    Part.LineSegment(App.Vector(-12.6, 8.9, 0), App.Vector(5.8, 8.9, 0)),  # 4
    Part.ArcOfCircle(Part.Circle(App.Vector(5.8, 6.6, 0), App.Vector(0, 0, 1), 2.3), math.radians(0), math.radians(90)),  # 5
    Part.LineSegment(App.Vector(8.1, 6.6, 0), App.Vector(8.1, -12.3, 0)),  # 6
    Part.ArcOfCircle(Part.Circle(App.Vector(5.8, -12.3, 0), App.Vector(0, 0, 1), 2.3), math.radians(-90), math.radians(0)),  # 7
], False)
sketch14.addConstraint([
    Sketcher.Constraint("Tangent", 0, 2, 1, 2),
    Sketcher.Constraint("Tangent", 1, 1, 2, 1),
    Sketcher.Constraint("Tangent", 2, 2, 3, 2),
    Sketcher.Constraint("Tangent", 3, 1, 4, 1),
    Sketcher.Constraint("Tangent", 4, 2, 5, 2),
    Sketcher.Constraint("Tangent", 5, 1, 6, 1),
    Sketcher.Constraint("Tangent", 6, 2, 7, 2),
    Sketcher.Constraint("Tangent", 7, 1, 0, 1),
    Sketcher.Constraint("Horizontal", 0),
    Sketcher.Constraint("Vertical", 2),
    Sketcher.Constraint("Horizontal", 4),
    Sketcher.Constraint("Vertical", 6),
    Sketcher.Constraint("Equal", 1, 3),
    Sketcher.Constraint("Equal", 3, 5),
    Sketcher.Constraint("Equal", 5, 7),
    Sketcher.Constraint("Radius", 1, Q("2.3 mm")),
    Sketcher.Constraint("DistanceX", 0, 2, 0, 1, Q("18.4 mm")),
    Sketcher.Constraint("DistanceY", 2, 1, 2, 2, Q("18.9 mm")),
    Sketcher.Constraint("DistanceY", 1, 3, -1, 1, Q("12.333102 mm")),
    Sketcher.Constraint("DistanceX", 1, 3, -1, 1, Q("12.649074 mm")),
])
pocket10 = doc.addObject("PartDesign::Pocket", "Pocket009")
body.addObject(pocket10)
pocket10.Profile = sketch14
pocket10.Length = 1.5

# Sketch on XZ plane
sketch15 = doc.addObject("Sketcher::SketchObject", "Sketch014")
body.addObject(sketch15)
sketch15.AttachmentSupport = (doc.XZ_Plane, [""])
sketch15.MapMode = "FlatFace"
sketch15.AttachmentOffset = App.Placement(App.Vector(0, 0, -1), App.Rotation())
sketch15.addGeometry([
    Part.Circle(App.Vector(-8.1, 14.4, 0), App.Vector(0, 0, 1), 1.5),
    Part.Circle(App.Vector(1.2, 14.4, 0), App.Vector(0, 0, 1), 1.5),
], False)
sketch15.addConstraint([
    Sketcher.Constraint("Equal", 0, 1),
    Sketcher.Constraint("Horizontal", 0, 3, 1, 3),
    Sketcher.Constraint("Diameter", 0, Q("3 mm")),
    Sketcher.Constraint("DistanceX", 0, 3, 1, 3, Q("9.3 mm")),
    Sketcher.Constraint("DistanceY", -1, 1, 0, 3, Q("14.366898 mm")),
    Sketcher.Constraint("DistanceX", 0, 3, -1, 1, Q("8.099074 mm")),
])
pocket11 = doc.addObject("PartDesign::Pocket", "Pocket010")
body.addObject(pocket11)
pocket11.Profile = sketch15
pocket11.Length = 10
pocket11.Reversed = True

doc.recompute()
